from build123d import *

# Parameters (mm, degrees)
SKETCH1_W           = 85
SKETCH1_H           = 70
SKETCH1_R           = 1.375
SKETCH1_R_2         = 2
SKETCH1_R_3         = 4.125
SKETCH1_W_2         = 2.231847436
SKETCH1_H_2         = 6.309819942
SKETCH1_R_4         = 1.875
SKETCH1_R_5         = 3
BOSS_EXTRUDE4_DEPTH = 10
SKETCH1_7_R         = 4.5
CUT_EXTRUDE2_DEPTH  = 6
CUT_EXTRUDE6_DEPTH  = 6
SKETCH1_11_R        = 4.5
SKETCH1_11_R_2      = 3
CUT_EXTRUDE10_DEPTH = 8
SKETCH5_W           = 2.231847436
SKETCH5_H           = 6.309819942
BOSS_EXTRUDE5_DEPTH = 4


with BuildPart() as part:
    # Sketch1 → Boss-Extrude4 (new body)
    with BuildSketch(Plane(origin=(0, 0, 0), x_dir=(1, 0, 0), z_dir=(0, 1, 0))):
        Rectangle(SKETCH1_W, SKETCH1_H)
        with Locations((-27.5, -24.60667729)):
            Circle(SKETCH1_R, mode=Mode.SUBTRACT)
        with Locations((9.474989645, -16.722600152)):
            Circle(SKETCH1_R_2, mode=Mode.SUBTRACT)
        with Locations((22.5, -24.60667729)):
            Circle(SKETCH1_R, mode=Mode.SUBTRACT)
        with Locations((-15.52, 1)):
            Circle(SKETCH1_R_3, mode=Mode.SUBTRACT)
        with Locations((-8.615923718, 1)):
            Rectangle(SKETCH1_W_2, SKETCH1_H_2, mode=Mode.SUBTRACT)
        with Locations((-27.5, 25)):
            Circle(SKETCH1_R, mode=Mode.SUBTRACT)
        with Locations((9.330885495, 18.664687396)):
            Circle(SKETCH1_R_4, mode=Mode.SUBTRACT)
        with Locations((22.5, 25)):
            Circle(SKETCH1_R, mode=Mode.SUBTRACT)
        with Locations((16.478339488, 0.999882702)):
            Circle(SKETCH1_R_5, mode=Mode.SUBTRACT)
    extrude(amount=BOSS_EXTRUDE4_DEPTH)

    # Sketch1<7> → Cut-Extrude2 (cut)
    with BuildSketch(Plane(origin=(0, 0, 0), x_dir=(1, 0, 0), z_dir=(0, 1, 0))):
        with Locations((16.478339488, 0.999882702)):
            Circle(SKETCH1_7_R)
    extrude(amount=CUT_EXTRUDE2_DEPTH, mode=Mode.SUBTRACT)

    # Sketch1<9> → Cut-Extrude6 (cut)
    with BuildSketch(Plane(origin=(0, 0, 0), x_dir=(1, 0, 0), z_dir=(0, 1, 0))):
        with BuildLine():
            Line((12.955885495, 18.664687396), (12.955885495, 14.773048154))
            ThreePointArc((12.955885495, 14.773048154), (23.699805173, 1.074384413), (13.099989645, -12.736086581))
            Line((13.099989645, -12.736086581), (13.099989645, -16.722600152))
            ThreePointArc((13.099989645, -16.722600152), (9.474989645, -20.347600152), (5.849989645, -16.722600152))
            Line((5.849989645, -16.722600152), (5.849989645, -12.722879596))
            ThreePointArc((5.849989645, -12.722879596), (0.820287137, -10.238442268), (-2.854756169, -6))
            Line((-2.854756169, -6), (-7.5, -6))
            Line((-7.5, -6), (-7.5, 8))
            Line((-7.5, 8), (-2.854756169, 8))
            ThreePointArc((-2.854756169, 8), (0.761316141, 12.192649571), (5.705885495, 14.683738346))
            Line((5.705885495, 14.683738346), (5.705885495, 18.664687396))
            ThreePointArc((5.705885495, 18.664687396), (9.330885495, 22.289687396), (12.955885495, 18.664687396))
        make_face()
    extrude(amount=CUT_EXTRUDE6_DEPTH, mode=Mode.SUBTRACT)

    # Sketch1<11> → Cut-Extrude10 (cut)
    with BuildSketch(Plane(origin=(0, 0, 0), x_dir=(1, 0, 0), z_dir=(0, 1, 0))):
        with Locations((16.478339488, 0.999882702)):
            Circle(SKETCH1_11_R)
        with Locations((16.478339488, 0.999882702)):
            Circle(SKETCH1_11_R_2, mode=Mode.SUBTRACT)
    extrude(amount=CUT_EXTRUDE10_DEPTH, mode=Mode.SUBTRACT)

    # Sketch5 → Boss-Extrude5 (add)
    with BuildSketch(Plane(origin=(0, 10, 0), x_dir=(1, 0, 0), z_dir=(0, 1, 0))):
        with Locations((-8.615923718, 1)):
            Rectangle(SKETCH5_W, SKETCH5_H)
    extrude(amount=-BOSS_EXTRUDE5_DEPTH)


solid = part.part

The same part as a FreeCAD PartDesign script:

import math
import FreeCAD as App
import Part
import Sketcher

V = App.Vector

doc = App.newDocument("Part")
body = doc.addObject("PartDesign::Body", "Body")

# Sketch on XZ plane
sketch1 = body.newObject("Sketcher::SketchObject", "Sketch")
sketch1.AttachmentSupport = (doc.getObject("XZ_Plane"), [""])
sketch1.MapMode = "FlatFace"
sketch1.addGeometry([
    Part.LineSegment(V(-42.5, -35, 0), V(-42.5, 35, 0)),  # 0
    Part.LineSegment(V(-42.5, 35, 0), V(42.5, 35, 0)),  # 1
    Part.LineSegment(V(42.5, 35, 0), V(42.5, -35, 0)),  # 2
    Part.LineSegment(V(42.5, -35, 0), V(-42.5, -35, 0)),  # 3
    Part.Circle(V(-27.5, 24.606677, 0), V(0, 0, 1), 1.375),  # 4
    Part.Circle(V(9.47499, 16.7226, 0), V(0, 0, 1), 2),  # 5
    Part.Circle(V(22.5, 24.606677, 0), V(0, 0, 1), 1.375),  # 6
    Part.Circle(V(-15.52, -1, 0), V(0, 0, 1), 4.125),  # 7
    Part.LineSegment(V(-7.5, 2.15491, 0), V(-9.731847, 2.15491, 0)),  # 8
    Part.LineSegment(V(-9.731847, 2.15491, 0), V(-9.731847, -4.15491, 0)),  # 9
    Part.LineSegment(V(-9.731847, -4.15491, 0), V(-7.5, -4.15491, 0)),  # 10
    Part.LineSegment(V(-7.5, -4.15491, 0), V(-7.5, 2.15491, 0)),  # 11
    Part.Circle(V(-27.5, -25, 0), V(0, 0, 1), 1.375),  # 12
    Part.Circle(V(16.478339, -0.999883, 0), V(0, 0, 1), 3),  # 13
    Part.Circle(V(9.330885, -18.664687, 0), V(0, 0, 1), 1.875),  # 14
    Part.Circle(V(22.5, -25, 0), V(0, 0, 1), 1.375),  # 15
], False)
sketch1.addConstraint([
    Sketcher.Constraint("Coincident", 0, 2, 1, 1),
    Sketcher.Constraint("Coincident", 1, 2, 2, 1),
    Sketcher.Constraint("Coincident", 2, 2, 3, 1),
    Sketcher.Constraint("Coincident", 3, 2, 0, 1),
    Sketcher.Constraint("Coincident", 8, 2, 9, 1),
    Sketcher.Constraint("Coincident", 9, 2, 10, 1),
    Sketcher.Constraint("Coincident", 10, 2, 11, 1),
    Sketcher.Constraint("Coincident", 11, 2, 8, 1),
    Sketcher.Constraint("Vertical", 0),
    Sketcher.Constraint("Horizontal", 1),
    Sketcher.Constraint("Vertical", 2),
    Sketcher.Constraint("Horizontal", 3),
    Sketcher.Constraint("Horizontal", 8),
    Sketcher.Constraint("Vertical", 9),
    Sketcher.Constraint("Horizontal", 10),
    Sketcher.Constraint("Vertical", 11),
    Sketcher.Constraint("Equal", 4, 6),
    Sketcher.Constraint("Equal", 6, 12),
    Sketcher.Constraint("Equal", 12, 15),
    Sketcher.Constraint("Symmetric", 0, 2, 2, 2, -1, 1),
    Sketcher.Constraint("Horizontal", 4, 3, 6, 3),
    Sketcher.Constraint("Horizontal", 12, 3, 15, 3),
    Sketcher.Constraint("Vertical", 4, 3, 12, 3),
    Sketcher.Constraint("Vertical", 6, 3, 15, 3),
    Sketcher.Constraint("Diameter", 5, 4.0),
    Sketcher.Constraint("Diameter", 13, 6.0),
    Sketcher.Constraint("Diameter", 4, 2.75),
    Sketcher.Constraint("Diameter", 7, 8.25),
    Sketcher.Constraint("Diameter", 14, 3.75),
    Sketcher.Constraint("DistanceX", 1, 1, 1, 2, 85.0),
    Sketcher.Constraint("DistanceY", 0, 1, 0, 2, 70.0),
    Sketcher.Constraint("DistanceY", 7, 3, -1, 1, 1.0),
    Sketcher.Constraint("DistanceY", 12, 3, -1, 1, 25.0),
    Sketcher.Constraint("DistanceX", 4, 3, 6, 3, 50.0),
    Sketcher.Constraint("DistanceX", 0, 2, 4, 3, 15.0),
    Sketcher.Constraint("DistanceX", 10, 2, -1, 1, 7.5),
    Sketcher.Constraint("DistanceX", 7, 3, -1, 1, 15.52),
    Sketcher.Constraint("DistanceY", 9, 2, 9, 1, 6.30982),
    Sketcher.Constraint("DistanceY", -1, 1, 5, 3, 16.7226),
    Sketcher.Constraint("DistanceX", 8, 2, 8, 1, 2.231847),
    Sketcher.Constraint("DistanceX", -1, 1, 5, 3, 9.47499),
    Sketcher.Constraint("DistanceX", -1, 1, 13, 3, 16.478339),
    Sketcher.Constraint("DistanceY", -1, 1, 8, 2, 2.15491),
    Sketcher.Constraint("DistanceY", 13, 3, 6, 3, 25.60656),
    Sketcher.Constraint("DistanceY", -1, 1, 4, 3, 24.606677),
    Sketcher.Constraint("DistanceX", -1, 1, 14, 3, 9.330885),
    Sketcher.Constraint("DistanceY", 14, 3, -1, 1, 18.664687),
])
pad1 = body.newObject("PartDesign::Pad", "Pad")
pad1.Profile = sketch1
pad1.Length = 10
pad1.Reversed = True

# Sketch on XZ plane
sketch2 = body.newObject("Sketcher::SketchObject", "Sketch001")
sketch2.AttachmentSupport = (doc.getObject("XZ_Plane"), [""])
sketch2.MapMode = "FlatFace"
sketch2.addGeometry(Part.Circle(V(16.478339, -0.999883, 0), V(0, 0, 1), 4.5), False)
sketch2.addConstraint([
    Sketcher.Constraint("Diameter", 0, 9.0),
    Sketcher.Constraint("DistanceX", -1, 1, 0, 3, 16.478339),
    Sketcher.Constraint("DistanceY", 0, 3, -1, 1, 0.999883),
])
pocket1 = body.newObject("PartDesign::Pocket", "Pocket")
pocket1.Profile = sketch2
pocket1.Length = 6

# Sketch on XZ plane
sketch3 = body.newObject("Sketcher::SketchObject", "Sketch002")
sketch3.AttachmentSupport = (doc.getObject("XZ_Plane"), [""])
sketch3.MapMode = "FlatFace"
sketch3.addGeometry([
    Part.LineSegment(V(12.955885, -14.773048, 0), V(12.955885, -18.664687, 0)),  # 0
    Part.ArcOfCircle(Part.Circle(V(9.330885, -18.664687, 0), V(0, 0, 1), 3.625), math.radians(180), math.radians(360)),  # 1
    Part.LineSegment(V(5.705885, -18.664687, 0), V(5.705885, -14.683738, 0)),  # 2
    Part.ArcOfCircle(Part.Circle(V(9.5, -1, 0), V(0, 0, 1), 14.2), math.radians(-150.464828), math.radians(-105.497193)),  # 3
    Part.LineSegment(V(-2.854756, -8, 0), V(-7.5, -8, 0)),  # 4
    Part.LineSegment(V(-7.5, -8, 0), V(-7.5, 6, 0)),  # 5
    Part.LineSegment(V(-7.5, 6, 0), V(-2.854756, 6, 0)),  # 6
    Part.ArcOfCircle(Part.Circle(V(9.5, -1, 0), V(0, 0, 1), 14.2), math.radians(104.894675), math.radians(150.464828)),  # 7
    Part.LineSegment(V(5.84999, 12.72288, 0), V(5.84999, 16.7226, 0)),  # 8
    Part.ArcOfCircle(Part.Circle(V(9.47499, 16.7226, 0), V(0, 0, 1), 3.625), math.radians(0), math.radians(180)),  # 9
    Part.LineSegment(V(13.09999, 16.7226, 0), V(13.09999, 12.736087, 0)),  # 10
    Part.ArcOfCircle(Part.Circle(V(9.5, -1, 0), V(0, 0, 1), 14.2), math.radians(-75.914343), math.radians(75.314071)),  # 11
], False)
sketch3.addConstraint([
    Sketcher.Constraint("Tangent", 0, 2, 1, 2),
    Sketcher.Constraint("Tangent", 1, 1, 2, 1),
    Sketcher.Constraint("Coincident", 2, 2, 3, 2),
    Sketcher.Constraint("Coincident", 3, 1, 4, 1),
    Sketcher.Constraint("Coincident", 4, 2, 5, 1),
    Sketcher.Constraint("Coincident", 5, 2, 6, 1),
    Sketcher.Constraint("Coincident", 6, 2, 7, 2),
    Sketcher.Constraint("Coincident", 7, 1, 8, 1),
    Sketcher.Constraint("Tangent", 8, 2, 9, 2),
    Sketcher.Constraint("Tangent", 9, 1, 10, 1),
    Sketcher.Constraint("Coincident", 10, 2, 11, 2),
    Sketcher.Constraint("Coincident", 11, 1, 0, 1),
    Sketcher.Constraint("Vertical", 0),
    Sketcher.Constraint("Vertical", 2),
    Sketcher.Constraint("Horizontal", 4),
    Sketcher.Constraint("Vertical", 5),
    Sketcher.Constraint("Horizontal", 6),
    Sketcher.Constraint("Vertical", 8),
    Sketcher.Constraint("Vertical", 10),
    Sketcher.Constraint("Coincident", 7, 3, 3, 3),
    Sketcher.Constraint("Coincident", 11, 3, 3, 3),
    Sketcher.Constraint("Equal", 3, 7),
    Sketcher.Constraint("Equal", 1, 9),
    Sketcher.Constraint("Equal", 7, 11),
    Sketcher.Constraint("Vertical", 3, 1, 6, 2),
    Sketcher.Constraint("Radius", 3, 14.2),
    Sketcher.Constraint("DistanceY", 5, 1, 5, 2, 14.0),
    Sketcher.Constraint("DistanceY", 3, 3, -1, 1, 1.0),
    Sketcher.Constraint("Radius", 1, 3.625),
    Sketcher.Constraint("DistanceX", 4, 2, 3, 3, 17.0),
    Sketcher.Constraint("DistanceX", -1, 1, 3, 3, 9.5),
    Sketcher.Constraint("DistanceY", 0, 2, 0, 1, 3.891639),
    Sketcher.Constraint("DistanceY", 2, 1, 2, 2, 3.980949),
    Sketcher.Constraint("DistanceY", 8, 1, 8, 2, 3.999721),
    Sketcher.Constraint("DistanceY", -1, 1, 9, 3, 16.7226),
])
pocket2 = body.newObject("PartDesign::Pocket", "Pocket001")
pocket2.Profile = sketch3
pocket2.Length = 6

# Sketch on XZ plane
sketch4 = body.newObject("Sketcher::SketchObject", "Sketch003")
sketch4.AttachmentSupport = (doc.getObject("XZ_Plane"), [""])
sketch4.MapMode = "FlatFace"
sketch4.addGeometry([
    Part.Circle(V(16.478339, -0.999883, 0), V(0, 0, 1), 4.5),
    Part.Circle(V(16.478339, -0.999883, 0), V(0, 0, 1), 3),
], False)
sketch4.addConstraint([
    Sketcher.Constraint("Coincident", 1, 3, 0, 3),
    Sketcher.Constraint("Diameter", 0, 9.0),
    Sketcher.Constraint("Diameter", 1, 6.0),
    Sketcher.Constraint("DistanceX", -1, 1, 0, 3, 16.478339),
    Sketcher.Constraint("DistanceY", 0, 3, -1, 1, 0.999883),
])
pocket3 = body.newObject("PartDesign::Pocket", "Pocket002")
pocket3.Profile = sketch4
pocket3.Length = 8

# Sketch on XZ plane
sketch5 = body.newObject("Sketcher::SketchObject", "Sketch004")
sketch5.AttachmentSupport = (doc.getObject("XZ_Plane"), [""])
sketch5.MapMode = "FlatFace"
sketch5.AttachmentOffset = App.Placement(V(0, 0, -10), App.Rotation())
sketch5.addGeometry([
    Part.LineSegment(V(-9.731847, -4.15491, 0), V(-9.731847, 2.15491, 0)),
    Part.LineSegment(V(-9.731847, 2.15491, 0), V(-7.5, 2.15491, 0)),
    Part.LineSegment(V(-7.5, 2.15491, 0), V(-7.5, -4.15491, 0)),
    Part.LineSegment(V(-7.5, -4.15491, 0), V(-9.731847, -4.15491, 0)),
], False)
sketch5.addConstraint([
    Sketcher.Constraint("Coincident", 0, 2, 1, 1),
    Sketcher.Constraint("Coincident", 1, 2, 2, 1),
    Sketcher.Constraint("Coincident", 2, 2, 3, 1),
    Sketcher.Constraint("Coincident", 3, 2, 0, 1),
    Sketcher.Constraint("Vertical", 0),
    Sketcher.Constraint("Horizontal", 1),
    Sketcher.Constraint("Vertical", 2),
    Sketcher.Constraint("Horizontal", 3),
    Sketcher.Constraint("DistanceX", 1, 2, -1, 1, 7.5),
    Sketcher.Constraint("DistanceY", 0, 1, 0, 2, 6.30982),
    Sketcher.Constraint("DistanceX", 1, 1, 1, 2, 2.231847),
    Sketcher.Constraint("DistanceY", -1, 1, 0, 2, 2.15491),
])
pad2 = body.newObject("PartDesign::Pad", "Pad001")
pad2.Profile = sketch5
pad2.Length = 4

doc.recompute()
